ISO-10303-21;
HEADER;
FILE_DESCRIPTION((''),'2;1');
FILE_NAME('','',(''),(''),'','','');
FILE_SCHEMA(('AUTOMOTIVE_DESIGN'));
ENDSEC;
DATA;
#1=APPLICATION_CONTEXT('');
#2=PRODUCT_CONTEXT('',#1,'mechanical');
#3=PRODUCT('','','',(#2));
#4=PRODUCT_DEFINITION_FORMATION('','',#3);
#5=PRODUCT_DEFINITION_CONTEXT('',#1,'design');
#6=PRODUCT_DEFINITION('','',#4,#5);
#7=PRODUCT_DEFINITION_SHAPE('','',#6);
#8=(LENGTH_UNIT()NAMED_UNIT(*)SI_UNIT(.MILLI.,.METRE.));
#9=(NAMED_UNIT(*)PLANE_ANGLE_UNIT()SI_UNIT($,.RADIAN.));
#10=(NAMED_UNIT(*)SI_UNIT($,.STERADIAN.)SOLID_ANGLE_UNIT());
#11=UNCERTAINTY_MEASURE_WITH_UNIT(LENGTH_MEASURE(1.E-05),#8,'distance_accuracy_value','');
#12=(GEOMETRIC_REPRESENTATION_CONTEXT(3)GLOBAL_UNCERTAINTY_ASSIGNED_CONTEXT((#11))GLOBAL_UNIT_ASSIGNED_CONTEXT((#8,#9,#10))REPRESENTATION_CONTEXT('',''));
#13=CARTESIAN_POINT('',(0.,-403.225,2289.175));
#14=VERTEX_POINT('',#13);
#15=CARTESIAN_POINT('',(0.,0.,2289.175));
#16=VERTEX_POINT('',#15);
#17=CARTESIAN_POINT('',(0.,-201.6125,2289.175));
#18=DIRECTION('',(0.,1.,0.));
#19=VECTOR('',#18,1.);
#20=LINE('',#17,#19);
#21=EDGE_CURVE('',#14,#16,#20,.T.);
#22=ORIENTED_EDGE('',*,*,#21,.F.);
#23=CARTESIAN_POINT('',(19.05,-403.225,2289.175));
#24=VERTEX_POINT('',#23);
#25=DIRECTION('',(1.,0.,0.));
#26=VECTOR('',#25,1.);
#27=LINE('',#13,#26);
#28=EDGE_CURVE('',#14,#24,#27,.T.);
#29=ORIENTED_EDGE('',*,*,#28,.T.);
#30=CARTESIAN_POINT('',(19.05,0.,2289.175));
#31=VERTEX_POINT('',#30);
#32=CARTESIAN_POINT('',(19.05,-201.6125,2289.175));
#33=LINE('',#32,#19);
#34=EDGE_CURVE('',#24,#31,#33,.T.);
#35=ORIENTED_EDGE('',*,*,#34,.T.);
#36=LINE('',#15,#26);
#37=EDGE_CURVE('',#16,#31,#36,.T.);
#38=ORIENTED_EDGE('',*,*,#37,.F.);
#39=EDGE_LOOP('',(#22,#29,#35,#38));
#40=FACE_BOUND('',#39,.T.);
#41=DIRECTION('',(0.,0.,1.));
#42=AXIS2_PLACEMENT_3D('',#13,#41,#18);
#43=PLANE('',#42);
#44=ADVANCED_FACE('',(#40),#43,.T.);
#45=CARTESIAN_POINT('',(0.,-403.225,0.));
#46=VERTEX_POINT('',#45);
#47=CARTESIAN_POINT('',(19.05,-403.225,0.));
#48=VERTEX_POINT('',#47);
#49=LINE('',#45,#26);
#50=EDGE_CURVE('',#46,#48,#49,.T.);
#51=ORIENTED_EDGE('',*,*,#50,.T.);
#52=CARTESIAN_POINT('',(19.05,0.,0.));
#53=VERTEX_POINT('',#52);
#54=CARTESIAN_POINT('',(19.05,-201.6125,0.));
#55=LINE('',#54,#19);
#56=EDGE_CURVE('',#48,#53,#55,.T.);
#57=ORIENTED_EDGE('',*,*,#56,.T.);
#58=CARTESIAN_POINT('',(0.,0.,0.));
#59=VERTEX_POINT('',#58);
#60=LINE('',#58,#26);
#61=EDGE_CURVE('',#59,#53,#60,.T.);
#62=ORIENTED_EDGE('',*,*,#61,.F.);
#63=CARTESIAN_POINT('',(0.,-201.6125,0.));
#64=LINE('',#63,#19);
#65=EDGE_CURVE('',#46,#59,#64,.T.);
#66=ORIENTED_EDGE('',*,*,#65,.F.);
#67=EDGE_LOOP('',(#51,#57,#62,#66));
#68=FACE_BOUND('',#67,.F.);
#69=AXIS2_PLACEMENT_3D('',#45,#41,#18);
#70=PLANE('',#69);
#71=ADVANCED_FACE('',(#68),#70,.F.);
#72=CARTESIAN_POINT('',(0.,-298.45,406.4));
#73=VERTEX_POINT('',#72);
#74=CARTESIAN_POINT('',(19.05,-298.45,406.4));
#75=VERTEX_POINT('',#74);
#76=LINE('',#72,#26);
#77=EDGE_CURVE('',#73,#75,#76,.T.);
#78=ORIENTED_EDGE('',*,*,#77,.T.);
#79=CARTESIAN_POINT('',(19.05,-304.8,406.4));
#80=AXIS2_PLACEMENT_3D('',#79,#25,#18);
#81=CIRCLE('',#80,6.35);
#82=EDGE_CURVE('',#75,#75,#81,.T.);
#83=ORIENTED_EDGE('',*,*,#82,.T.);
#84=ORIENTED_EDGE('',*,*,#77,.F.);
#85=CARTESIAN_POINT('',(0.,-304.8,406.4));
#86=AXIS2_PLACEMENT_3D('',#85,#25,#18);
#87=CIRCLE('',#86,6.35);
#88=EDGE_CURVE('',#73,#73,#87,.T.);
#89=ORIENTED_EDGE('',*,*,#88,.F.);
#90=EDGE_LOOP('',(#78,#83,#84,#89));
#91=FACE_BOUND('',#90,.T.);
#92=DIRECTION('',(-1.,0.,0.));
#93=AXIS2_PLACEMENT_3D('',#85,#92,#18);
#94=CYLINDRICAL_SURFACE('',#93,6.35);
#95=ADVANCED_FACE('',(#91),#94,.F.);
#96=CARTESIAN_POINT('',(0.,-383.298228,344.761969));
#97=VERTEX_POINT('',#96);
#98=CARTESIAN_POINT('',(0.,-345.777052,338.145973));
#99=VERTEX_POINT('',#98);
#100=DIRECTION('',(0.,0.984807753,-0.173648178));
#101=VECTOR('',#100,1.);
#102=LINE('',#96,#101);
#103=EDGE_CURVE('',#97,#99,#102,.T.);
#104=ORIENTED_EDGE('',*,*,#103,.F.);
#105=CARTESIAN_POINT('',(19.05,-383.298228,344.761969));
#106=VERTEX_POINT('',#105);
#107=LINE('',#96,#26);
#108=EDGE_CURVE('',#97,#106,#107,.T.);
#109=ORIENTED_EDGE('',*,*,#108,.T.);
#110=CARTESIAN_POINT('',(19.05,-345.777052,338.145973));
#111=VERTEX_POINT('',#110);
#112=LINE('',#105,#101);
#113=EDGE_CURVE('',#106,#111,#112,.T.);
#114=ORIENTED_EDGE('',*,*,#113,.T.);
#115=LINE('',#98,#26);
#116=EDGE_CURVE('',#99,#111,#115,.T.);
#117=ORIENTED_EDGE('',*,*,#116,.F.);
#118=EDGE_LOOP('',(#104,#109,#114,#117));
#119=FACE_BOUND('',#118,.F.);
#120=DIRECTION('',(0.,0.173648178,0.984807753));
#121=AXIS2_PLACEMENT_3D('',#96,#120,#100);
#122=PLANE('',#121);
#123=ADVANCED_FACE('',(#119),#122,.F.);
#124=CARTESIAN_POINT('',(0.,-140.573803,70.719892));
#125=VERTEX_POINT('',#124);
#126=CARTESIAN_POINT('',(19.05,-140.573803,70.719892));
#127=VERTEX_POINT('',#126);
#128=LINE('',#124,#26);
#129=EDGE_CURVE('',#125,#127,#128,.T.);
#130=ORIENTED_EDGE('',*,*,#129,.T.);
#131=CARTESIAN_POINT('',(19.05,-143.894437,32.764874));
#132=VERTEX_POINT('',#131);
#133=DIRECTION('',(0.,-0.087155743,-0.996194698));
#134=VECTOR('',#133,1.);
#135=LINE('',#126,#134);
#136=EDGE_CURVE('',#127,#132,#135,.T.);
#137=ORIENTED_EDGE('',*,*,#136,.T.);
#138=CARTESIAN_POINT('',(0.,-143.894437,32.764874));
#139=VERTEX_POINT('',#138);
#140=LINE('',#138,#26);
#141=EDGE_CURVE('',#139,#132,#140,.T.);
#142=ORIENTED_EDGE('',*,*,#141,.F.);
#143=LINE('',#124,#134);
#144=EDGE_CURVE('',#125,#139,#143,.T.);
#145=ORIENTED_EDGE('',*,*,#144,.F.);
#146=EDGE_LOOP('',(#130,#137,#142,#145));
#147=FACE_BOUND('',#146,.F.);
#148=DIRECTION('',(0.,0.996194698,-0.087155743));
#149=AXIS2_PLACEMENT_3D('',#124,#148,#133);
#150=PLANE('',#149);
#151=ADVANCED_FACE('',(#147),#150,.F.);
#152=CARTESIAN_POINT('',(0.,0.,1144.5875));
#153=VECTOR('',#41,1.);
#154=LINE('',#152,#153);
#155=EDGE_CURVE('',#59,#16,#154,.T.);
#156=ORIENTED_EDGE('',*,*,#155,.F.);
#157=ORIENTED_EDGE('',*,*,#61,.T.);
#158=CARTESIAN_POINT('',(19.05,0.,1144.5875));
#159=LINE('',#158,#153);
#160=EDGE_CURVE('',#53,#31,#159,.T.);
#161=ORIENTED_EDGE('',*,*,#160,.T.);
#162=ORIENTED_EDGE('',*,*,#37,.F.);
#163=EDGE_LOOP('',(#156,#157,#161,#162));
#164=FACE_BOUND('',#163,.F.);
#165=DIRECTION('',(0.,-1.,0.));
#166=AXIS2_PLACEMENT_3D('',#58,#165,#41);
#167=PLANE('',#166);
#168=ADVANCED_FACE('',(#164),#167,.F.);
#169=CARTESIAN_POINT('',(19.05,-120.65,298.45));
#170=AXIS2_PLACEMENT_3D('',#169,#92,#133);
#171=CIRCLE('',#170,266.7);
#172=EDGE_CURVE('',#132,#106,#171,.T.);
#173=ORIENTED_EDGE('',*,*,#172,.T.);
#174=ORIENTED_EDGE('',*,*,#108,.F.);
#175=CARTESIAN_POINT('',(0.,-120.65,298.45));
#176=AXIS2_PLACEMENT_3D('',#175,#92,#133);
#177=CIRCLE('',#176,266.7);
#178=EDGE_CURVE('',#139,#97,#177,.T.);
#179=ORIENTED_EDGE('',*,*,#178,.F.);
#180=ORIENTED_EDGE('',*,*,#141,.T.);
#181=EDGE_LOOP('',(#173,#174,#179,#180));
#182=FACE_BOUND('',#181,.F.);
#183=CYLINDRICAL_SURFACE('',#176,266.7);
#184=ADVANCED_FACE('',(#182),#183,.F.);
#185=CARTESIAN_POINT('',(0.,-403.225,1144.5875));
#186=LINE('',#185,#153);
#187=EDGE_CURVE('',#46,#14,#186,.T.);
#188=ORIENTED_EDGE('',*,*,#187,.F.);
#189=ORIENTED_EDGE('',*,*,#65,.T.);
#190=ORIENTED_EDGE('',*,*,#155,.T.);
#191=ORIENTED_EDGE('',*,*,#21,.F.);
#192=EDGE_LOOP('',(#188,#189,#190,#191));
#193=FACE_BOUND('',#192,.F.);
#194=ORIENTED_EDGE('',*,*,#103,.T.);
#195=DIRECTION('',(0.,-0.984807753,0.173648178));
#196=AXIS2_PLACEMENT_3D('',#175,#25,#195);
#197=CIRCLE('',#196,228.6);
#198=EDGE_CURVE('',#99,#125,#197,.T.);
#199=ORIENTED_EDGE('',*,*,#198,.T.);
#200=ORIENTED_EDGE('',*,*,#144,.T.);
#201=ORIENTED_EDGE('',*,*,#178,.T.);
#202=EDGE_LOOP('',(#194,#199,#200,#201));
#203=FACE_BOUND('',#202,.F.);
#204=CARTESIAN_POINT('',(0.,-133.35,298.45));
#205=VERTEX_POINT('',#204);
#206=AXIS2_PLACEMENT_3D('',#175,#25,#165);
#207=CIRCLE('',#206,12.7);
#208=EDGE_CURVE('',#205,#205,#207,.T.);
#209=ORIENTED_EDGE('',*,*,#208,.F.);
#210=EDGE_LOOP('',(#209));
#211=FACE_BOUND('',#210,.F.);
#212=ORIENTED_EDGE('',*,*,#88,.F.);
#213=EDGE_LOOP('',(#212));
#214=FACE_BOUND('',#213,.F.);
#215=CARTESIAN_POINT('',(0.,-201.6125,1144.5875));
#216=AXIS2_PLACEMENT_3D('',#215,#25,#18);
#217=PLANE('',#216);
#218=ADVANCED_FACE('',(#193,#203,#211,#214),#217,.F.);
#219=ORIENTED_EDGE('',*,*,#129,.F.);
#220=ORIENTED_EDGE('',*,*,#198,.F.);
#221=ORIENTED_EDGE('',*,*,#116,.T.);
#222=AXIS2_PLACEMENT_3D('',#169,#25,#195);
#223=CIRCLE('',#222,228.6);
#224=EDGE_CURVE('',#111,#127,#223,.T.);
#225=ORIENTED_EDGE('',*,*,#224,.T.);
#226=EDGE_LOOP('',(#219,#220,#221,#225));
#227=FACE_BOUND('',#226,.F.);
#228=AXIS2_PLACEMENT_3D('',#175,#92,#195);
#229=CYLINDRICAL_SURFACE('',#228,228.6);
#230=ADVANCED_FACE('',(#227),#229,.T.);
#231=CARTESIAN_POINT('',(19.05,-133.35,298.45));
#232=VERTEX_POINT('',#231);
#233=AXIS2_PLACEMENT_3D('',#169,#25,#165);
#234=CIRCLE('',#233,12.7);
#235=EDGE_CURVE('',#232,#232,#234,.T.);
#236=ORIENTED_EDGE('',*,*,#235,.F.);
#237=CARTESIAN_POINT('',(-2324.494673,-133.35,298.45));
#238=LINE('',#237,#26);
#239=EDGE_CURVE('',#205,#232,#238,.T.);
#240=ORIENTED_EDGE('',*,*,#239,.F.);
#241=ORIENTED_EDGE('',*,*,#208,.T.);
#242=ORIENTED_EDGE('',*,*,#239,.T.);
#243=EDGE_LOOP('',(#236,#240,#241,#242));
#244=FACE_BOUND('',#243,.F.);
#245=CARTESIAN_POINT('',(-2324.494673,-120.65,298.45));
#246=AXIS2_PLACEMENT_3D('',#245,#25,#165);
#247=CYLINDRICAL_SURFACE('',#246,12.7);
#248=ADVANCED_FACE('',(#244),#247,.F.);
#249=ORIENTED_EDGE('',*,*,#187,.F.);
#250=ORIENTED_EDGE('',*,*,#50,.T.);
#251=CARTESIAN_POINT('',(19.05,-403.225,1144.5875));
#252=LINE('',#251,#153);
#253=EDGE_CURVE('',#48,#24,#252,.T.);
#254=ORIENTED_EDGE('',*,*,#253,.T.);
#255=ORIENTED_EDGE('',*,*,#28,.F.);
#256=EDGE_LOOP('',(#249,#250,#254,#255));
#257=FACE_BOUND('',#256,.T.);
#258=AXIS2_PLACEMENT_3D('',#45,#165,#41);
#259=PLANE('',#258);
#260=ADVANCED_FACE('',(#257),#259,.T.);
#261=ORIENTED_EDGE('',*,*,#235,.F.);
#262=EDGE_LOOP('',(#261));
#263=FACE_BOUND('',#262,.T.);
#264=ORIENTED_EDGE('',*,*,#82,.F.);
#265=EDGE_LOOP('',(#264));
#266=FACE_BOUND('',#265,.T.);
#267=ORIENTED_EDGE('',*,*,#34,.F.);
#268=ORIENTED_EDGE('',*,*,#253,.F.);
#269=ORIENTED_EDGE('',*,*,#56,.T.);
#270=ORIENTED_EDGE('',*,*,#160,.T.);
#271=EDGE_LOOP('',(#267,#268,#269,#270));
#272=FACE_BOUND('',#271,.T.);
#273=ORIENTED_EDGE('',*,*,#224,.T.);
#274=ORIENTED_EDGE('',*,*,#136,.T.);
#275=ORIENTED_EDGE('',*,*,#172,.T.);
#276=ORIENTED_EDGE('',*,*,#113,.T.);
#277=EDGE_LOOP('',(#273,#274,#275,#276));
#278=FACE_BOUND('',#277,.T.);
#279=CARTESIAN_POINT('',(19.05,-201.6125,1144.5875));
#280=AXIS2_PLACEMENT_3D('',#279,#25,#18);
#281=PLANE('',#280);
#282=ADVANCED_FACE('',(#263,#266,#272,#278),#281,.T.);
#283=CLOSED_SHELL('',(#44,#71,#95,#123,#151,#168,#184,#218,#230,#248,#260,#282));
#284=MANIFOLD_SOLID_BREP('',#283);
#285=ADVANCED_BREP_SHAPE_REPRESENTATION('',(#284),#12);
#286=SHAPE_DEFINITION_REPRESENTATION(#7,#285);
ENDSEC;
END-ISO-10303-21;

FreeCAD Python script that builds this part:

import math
import FreeCAD as App
import Part
import Sketcher

V = App.Vector
Q = App.Units.Quantity

doc = App.newDocument("Part")
params = doc.addObject("Spreadsheet::Sheet", "Params")
for row, (alias, value) in enumerate([
    ("sketch1_radius", "9 in"),
    ("sketch1_diameter", "0.5 in"),
    ("sketch1_radius2", "10.5 in"),
    ("sketch1_width", "15.875 in"),
    ("sketch1_height", "90.125 in"),
    ("pad1_length", "0.75 in"),
    ("sketch2_diameter", "1 in"),
    ("hole_diameter", "1 in"),
], start=1):
    params.set(f"A{row}", alias)
    params.set(f"B{row}", "=" + value)
    params.setAlias(f"B{row}", alias)

body = doc.addObject("PartDesign::Body", "Body")

# Sketch on YZ plane
sketch1 = body.newObject("Sketcher::SketchObject", "Sketch")
sketch1.AttachmentSupport = (doc.getObject("YZ_Plane"), [""])
sketch1.MapMode = "FlatFace"
sketch1.addGeometry(Part.LineSegment(V(-403, 2289, 0), V(-403, 0, 0)), False)
sketch1.addGeometry(Part.LineSegment(V(-403, 0, 0), V(0, 0, 0)), False)
sketch1.addGeometry(Part.LineSegment(V(0, 0, 0), V(0, 2289, 0)), False)
sketch1.addGeometry(Part.LineSegment(V(0, 2289, 0), V(-403, 2289, 0)), False)
sketch1.addGeometry(Part.ArcOfCircle(Part.Circle(V(-121, 298, 0), V(0, 0, 1), 267), math.radians(170), math.radians(265)), False)
sketch1.addGeometry(Part.LineSegment(V(-383, 345, 0), V(-346, 338, 0)), False)
sketch1.addGeometry(Part.ArcOfCircle(Part.Circle(V(-121, 298, 0), V(0, 0, 1), 229), math.radians(170), math.radians(265)), False)
sketch1.addGeometry(Part.LineSegment(V(-141, 71, 0), V(-144, 33, 0)), False)
sketch1.addGeometry(Part.Circle(V(-305, 406, 0), V(0, 0, 1), 6), False)
sketch1.addConstraint(Sketcher.Constraint("Coincident", 0, 2, 1, 1))
sketch1.addConstraint(Sketcher.Constraint("Coincident", 1, 2, 2, 1))
sketch1.addConstraint(Sketcher.Constraint("Coincident", 2, 2, 3, 1))
sketch1.addConstraint(Sketcher.Constraint("Coincident", 3, 2, 0, 1))
sketch1.addConstraint(Sketcher.Constraint("Coincident", 4, 1, 5, 1))
sketch1.addConstraint(Sketcher.Constraint("Coincident", 5, 2, 6, 1))
sketch1.addConstraint(Sketcher.Constraint("Coincident", 6, 2, 7, 1))
sketch1.addConstraint(Sketcher.Constraint("Coincident", 7, 2, 4, 2))
sketch1.addConstraint(Sketcher.Constraint("Vertical", 0))
sketch1.addConstraint(Sketcher.Constraint("Horizontal", 1))
sketch1.addConstraint(Sketcher.Constraint("Vertical", 2))
sketch1.addConstraint(Sketcher.Constraint("Horizontal", 3))
sketch1.addConstraint(Sketcher.Constraint("Coincident", 1, 2, -1, 1))
sketch1.addConstraint(Sketcher.Constraint("Coincident", 6, 3, 4, 3))
sketch1.addConstraint(Sketcher.Constraint("Radius", 6, Q("9 in")))
sketch1.addConstraint(Sketcher.Constraint("Diameter", 8, Q("0.5 in")))
sketch1.addConstraint(Sketcher.Constraint("Radius", 4, Q("10.5 in")))
sketch1.addConstraint(Sketcher.Constraint("DistanceX", 8, 3, -1, 1, Q("12 in")))
sketch1.addConstraint(Sketcher.Constraint("DistanceY", -1, 1, 8, 3, Q("16 in")))
sketch1.addConstraint(Sketcher.Constraint("Angle", 5, Q("-10 deg")))
sketch1.addConstraint(Sketcher.Constraint("Angle", 7, Q("-95 deg")))
sketch1.addConstraint(Sketcher.Constraint("DistanceX", 1, 1, 1, 2, Q("15.875 in")))
sketch1.addConstraint(Sketcher.Constraint("DistanceY", 0, 2, 0, 1, Q("90.125 in")))
sketch1.addConstraint(Sketcher.Constraint("DistanceX", 4, 3, -1, 1, Q("4.75 in")))
sketch1.addConstraint(Sketcher.Constraint("DistanceY", -1, 1, 4, 3, Q("11.75 in")))
sketch1.addConstraint(Sketcher.Constraint("DistanceY", -1, 1, 4, 1, Q("344.761969 mm")))
sketch1.addConstraint(Sketcher.Constraint("DistanceX", 5, 2, 6, 2, Q("205.20325 mm")))
sketch1.setExpression("Constraints[14]", "Params.sketch1_radius")
sketch1.setExpression("Constraints[15]", "Params.sketch1_diameter")
sketch1.setExpression("Constraints[16]", "Params.sketch1_radius2")
sketch1.setExpression("Constraints[21]", "Params.sketch1_width")
sketch1.setExpression("Constraints[22]", "Params.sketch1_height")
pad1 = body.newObject("PartDesign::Pad", "Pad")
pad1.Profile = sketch1
pad1.setExpression("Length", "Params.pad1_length")

# Sketch on YZ plane
sketch2 = body.newObject("Sketcher::SketchObject", "Sketch001")
sketch2.AttachmentSupport = (doc.getObject("YZ_Plane"), [""])
sketch2.MapMode = "FlatFace"
sketch2.addGeometry(Part.Circle(V(-121, 298, 0), V(0, 0, 1), 13), False)
sketch2.addConstraint(Sketcher.Constraint("Diameter", 0, Q("1 in")))
sketch2.addConstraint(Sketcher.Constraint("DistanceX", 0, 3, -1, 1, Q("4.75 in")))
sketch2.addConstraint(Sketcher.Constraint("DistanceY", -1, 1, 0, 3, Q("11.75 in")))
sketch2.setExpression("Constraints[0]", "Params.sketch2_diameter")
doc.recompute()
hole = body.newObject("PartDesign::Hole", "Hole")
hole.Profile = sketch2
hole.ThreadType = "None"
hole.setExpression("Diameter", "Params.hole_diameter")
hole.DepthType = "ThroughAll"
hole.Reversed = True

doc.recompute()
